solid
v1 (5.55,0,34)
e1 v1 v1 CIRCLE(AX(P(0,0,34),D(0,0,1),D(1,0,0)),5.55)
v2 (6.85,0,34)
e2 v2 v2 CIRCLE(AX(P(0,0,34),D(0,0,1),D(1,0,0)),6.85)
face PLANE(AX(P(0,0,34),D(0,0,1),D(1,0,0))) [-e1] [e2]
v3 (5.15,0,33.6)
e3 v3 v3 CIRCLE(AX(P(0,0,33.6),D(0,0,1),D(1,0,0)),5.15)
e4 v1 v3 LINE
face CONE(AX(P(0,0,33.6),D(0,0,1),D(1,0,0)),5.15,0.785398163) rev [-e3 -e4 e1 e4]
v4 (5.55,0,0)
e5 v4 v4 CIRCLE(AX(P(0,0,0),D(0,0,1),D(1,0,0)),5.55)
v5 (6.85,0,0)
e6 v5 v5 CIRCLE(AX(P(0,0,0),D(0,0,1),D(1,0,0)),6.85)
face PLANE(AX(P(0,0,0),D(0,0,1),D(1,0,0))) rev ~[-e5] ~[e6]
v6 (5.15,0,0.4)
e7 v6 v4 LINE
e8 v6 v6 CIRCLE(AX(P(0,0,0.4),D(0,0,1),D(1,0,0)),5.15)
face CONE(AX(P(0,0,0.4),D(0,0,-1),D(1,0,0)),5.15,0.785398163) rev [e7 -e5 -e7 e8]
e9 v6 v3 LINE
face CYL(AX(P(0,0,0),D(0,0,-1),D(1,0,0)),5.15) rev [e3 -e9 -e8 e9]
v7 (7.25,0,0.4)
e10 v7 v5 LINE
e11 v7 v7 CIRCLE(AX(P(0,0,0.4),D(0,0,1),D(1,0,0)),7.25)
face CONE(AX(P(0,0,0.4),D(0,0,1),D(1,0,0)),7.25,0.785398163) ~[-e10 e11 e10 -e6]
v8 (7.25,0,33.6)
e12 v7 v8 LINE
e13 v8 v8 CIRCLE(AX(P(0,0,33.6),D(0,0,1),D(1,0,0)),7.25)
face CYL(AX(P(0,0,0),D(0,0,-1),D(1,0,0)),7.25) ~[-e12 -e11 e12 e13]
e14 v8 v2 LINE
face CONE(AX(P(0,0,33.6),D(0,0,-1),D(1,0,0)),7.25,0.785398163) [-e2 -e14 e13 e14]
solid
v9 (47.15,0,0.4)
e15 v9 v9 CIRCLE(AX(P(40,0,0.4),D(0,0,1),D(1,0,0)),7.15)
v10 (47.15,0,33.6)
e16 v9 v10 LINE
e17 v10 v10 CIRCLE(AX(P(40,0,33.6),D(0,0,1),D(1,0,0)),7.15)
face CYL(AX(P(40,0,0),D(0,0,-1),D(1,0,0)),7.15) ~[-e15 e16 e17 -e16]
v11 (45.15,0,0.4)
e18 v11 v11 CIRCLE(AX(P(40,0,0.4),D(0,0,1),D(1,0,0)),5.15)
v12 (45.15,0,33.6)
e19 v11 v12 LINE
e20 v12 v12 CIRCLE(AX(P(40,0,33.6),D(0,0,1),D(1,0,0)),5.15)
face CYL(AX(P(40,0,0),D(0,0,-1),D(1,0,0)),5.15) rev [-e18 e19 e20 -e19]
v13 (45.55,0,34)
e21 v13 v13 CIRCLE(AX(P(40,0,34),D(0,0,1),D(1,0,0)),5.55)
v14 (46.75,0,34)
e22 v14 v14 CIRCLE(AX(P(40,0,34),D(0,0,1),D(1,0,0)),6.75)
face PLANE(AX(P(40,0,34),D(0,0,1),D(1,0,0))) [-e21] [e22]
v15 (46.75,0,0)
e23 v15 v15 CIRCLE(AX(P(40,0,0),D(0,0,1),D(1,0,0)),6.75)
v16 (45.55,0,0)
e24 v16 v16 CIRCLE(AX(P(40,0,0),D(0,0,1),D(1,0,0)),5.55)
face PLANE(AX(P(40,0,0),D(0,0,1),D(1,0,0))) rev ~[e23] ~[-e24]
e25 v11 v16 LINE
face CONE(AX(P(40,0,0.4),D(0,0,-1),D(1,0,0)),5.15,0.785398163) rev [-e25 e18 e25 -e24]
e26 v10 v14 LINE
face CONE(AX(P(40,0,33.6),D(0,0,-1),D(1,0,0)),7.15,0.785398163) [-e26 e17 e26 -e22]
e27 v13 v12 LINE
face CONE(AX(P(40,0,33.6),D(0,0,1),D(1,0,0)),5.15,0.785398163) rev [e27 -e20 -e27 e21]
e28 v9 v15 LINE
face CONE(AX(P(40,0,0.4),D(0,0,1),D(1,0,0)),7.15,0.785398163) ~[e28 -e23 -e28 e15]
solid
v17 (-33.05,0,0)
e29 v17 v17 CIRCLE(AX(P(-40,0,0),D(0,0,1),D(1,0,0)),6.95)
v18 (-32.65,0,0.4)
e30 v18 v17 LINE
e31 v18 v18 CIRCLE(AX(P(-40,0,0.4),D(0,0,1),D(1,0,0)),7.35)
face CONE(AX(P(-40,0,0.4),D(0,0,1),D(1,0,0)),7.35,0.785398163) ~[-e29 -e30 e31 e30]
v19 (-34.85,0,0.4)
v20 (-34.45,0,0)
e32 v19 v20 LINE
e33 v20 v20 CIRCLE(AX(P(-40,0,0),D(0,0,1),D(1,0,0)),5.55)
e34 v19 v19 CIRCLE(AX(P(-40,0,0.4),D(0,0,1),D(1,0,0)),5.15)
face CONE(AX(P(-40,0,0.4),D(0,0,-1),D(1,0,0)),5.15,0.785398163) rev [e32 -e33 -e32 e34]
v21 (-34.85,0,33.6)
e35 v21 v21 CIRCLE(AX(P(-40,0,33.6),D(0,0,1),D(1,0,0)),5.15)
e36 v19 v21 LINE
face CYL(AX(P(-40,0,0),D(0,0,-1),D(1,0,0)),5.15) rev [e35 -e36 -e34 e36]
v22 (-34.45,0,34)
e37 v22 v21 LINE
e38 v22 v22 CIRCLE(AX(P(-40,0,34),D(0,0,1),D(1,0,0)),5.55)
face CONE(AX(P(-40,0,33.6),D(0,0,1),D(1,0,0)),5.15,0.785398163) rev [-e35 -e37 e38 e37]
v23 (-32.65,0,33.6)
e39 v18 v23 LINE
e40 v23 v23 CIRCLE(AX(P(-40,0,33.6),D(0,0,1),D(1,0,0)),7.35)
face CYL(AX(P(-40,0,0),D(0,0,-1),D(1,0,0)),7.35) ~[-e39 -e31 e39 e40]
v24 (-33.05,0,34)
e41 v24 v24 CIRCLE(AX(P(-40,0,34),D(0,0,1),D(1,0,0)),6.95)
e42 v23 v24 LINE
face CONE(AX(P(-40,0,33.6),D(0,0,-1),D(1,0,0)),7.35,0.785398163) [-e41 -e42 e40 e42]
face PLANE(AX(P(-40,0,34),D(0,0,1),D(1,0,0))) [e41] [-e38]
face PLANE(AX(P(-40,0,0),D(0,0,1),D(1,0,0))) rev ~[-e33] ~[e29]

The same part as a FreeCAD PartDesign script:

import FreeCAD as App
import Part
import Sketcher

V = App.Vector
Q = App.Units.Quantity


def edges_at(feature, points):
    """Names of the edges that pass closest to the given points."""
    edges = feature.Shape.Edges
    near = lambda p: min(range(len(edges)), key=lambda i: edges[i].distToShape(Part.Vertex(*p))[0])
    return sorted({f"Edge{near(p) + 1}" for p in points})

doc = App.newDocument("Part")
body = doc.addObject("PartDesign::Body", "Body")
body.AllowCompound = True

sketch1 = body.newObject("Sketcher::SketchObject", "Sketch")
sketch1.AttachmentSupport = (doc.getObject("XY_Plane"), [""])
sketch1.MapMode = "FlatFace"
sketch1.addGeometry(Part.Circle(V(0, 0, 0), V(0, 0, 1), 7.25), False)
sketch1.addGeometry(Part.Circle(V(0, 0, 0), V(0, 0, 1), 5.15), False)
sketch1.addGeometry(Part.Circle(V(-40, 0, 0), V(0, 0, 1), 7.35), False)
sketch1.addGeometry(Part.Circle(V(-40, 0, 0), V(0, 0, 1), 5.15), False)
sketch1.addGeometry(Part.Circle(V(40, 0, 0), V(0, 0, 1), 7.15), False)
sketch1.addGeometry(Part.Circle(V(40, 0, 0), V(0, 0, 1), 5.15), False)
sketch1.addConstraint(Sketcher.Constraint("Coincident", 0, 3, -1, 1))
sketch1.addConstraint(Sketcher.Constraint("Coincident", 1, 3, -1, 1))
sketch1.addConstraint(Sketcher.Constraint("Coincident", 3, 3, 2, 3))
sketch1.addConstraint(Sketcher.Constraint("Coincident", 5, 3, 4, 3))
sketch1.addConstraint(Sketcher.Constraint("Equal", 1, 3))
sketch1.addConstraint(Sketcher.Constraint("Equal", 3, 5))
sketch1.addConstraint(Sketcher.Constraint("Symmetric", 2, 3, 4, 3, -1, 1))
sketch1.addConstraint(Sketcher.Constraint("PointOnObject", 2, 3, -1))
sketch1.addConstraint(Sketcher.Constraint("Diameter", 0, Q("14.5 mm")))
sketch1.addConstraint(Sketcher.Constraint("Diameter", 1, Q("10.3 mm")))
sketch1.addConstraint(Sketcher.Constraint("Diameter", 2, Q("14.7 mm")))
sketch1.addConstraint(Sketcher.Constraint("Diameter", 4, Q("14.3 mm")))
sketch1.addConstraint(Sketcher.Constraint("DistanceX", 2, 3, -1, 1, Q("40 mm")))
pad1 = body.newObject("PartDesign::Pad", "Pad")
pad1.Profile = sketch1
pad1.Length = 34
doc.recompute()

chamfer = body.newObject("PartDesign::Chamfer", "Chamfer")
chamfer.Base = (pad1, edges_at(pad1, [
    (-7.25, 0, 0),
    (-47.35, 0, 0),
    (-45.15, 0, 0),
    (32.85, 0, 0),
    (34.85, 0, 0),
    (-5.15, 0, 0),
]))
chamfer.Size = 0.4
doc.recompute()

chamfer2 = body.newObject("PartDesign::Chamfer", "Chamfer001")
chamfer2.Base = (chamfer, edges_at(chamfer, [
    (-7.25, 0, 34),
    (-47.35, 0, 34),
    (-45.15, 0, 34),
    (32.85, 0, 34),
    (34.85, 0, 34),
    (-5.15, 0, 34),
]))
chamfer2.Size = 0.4

doc.recompute()
